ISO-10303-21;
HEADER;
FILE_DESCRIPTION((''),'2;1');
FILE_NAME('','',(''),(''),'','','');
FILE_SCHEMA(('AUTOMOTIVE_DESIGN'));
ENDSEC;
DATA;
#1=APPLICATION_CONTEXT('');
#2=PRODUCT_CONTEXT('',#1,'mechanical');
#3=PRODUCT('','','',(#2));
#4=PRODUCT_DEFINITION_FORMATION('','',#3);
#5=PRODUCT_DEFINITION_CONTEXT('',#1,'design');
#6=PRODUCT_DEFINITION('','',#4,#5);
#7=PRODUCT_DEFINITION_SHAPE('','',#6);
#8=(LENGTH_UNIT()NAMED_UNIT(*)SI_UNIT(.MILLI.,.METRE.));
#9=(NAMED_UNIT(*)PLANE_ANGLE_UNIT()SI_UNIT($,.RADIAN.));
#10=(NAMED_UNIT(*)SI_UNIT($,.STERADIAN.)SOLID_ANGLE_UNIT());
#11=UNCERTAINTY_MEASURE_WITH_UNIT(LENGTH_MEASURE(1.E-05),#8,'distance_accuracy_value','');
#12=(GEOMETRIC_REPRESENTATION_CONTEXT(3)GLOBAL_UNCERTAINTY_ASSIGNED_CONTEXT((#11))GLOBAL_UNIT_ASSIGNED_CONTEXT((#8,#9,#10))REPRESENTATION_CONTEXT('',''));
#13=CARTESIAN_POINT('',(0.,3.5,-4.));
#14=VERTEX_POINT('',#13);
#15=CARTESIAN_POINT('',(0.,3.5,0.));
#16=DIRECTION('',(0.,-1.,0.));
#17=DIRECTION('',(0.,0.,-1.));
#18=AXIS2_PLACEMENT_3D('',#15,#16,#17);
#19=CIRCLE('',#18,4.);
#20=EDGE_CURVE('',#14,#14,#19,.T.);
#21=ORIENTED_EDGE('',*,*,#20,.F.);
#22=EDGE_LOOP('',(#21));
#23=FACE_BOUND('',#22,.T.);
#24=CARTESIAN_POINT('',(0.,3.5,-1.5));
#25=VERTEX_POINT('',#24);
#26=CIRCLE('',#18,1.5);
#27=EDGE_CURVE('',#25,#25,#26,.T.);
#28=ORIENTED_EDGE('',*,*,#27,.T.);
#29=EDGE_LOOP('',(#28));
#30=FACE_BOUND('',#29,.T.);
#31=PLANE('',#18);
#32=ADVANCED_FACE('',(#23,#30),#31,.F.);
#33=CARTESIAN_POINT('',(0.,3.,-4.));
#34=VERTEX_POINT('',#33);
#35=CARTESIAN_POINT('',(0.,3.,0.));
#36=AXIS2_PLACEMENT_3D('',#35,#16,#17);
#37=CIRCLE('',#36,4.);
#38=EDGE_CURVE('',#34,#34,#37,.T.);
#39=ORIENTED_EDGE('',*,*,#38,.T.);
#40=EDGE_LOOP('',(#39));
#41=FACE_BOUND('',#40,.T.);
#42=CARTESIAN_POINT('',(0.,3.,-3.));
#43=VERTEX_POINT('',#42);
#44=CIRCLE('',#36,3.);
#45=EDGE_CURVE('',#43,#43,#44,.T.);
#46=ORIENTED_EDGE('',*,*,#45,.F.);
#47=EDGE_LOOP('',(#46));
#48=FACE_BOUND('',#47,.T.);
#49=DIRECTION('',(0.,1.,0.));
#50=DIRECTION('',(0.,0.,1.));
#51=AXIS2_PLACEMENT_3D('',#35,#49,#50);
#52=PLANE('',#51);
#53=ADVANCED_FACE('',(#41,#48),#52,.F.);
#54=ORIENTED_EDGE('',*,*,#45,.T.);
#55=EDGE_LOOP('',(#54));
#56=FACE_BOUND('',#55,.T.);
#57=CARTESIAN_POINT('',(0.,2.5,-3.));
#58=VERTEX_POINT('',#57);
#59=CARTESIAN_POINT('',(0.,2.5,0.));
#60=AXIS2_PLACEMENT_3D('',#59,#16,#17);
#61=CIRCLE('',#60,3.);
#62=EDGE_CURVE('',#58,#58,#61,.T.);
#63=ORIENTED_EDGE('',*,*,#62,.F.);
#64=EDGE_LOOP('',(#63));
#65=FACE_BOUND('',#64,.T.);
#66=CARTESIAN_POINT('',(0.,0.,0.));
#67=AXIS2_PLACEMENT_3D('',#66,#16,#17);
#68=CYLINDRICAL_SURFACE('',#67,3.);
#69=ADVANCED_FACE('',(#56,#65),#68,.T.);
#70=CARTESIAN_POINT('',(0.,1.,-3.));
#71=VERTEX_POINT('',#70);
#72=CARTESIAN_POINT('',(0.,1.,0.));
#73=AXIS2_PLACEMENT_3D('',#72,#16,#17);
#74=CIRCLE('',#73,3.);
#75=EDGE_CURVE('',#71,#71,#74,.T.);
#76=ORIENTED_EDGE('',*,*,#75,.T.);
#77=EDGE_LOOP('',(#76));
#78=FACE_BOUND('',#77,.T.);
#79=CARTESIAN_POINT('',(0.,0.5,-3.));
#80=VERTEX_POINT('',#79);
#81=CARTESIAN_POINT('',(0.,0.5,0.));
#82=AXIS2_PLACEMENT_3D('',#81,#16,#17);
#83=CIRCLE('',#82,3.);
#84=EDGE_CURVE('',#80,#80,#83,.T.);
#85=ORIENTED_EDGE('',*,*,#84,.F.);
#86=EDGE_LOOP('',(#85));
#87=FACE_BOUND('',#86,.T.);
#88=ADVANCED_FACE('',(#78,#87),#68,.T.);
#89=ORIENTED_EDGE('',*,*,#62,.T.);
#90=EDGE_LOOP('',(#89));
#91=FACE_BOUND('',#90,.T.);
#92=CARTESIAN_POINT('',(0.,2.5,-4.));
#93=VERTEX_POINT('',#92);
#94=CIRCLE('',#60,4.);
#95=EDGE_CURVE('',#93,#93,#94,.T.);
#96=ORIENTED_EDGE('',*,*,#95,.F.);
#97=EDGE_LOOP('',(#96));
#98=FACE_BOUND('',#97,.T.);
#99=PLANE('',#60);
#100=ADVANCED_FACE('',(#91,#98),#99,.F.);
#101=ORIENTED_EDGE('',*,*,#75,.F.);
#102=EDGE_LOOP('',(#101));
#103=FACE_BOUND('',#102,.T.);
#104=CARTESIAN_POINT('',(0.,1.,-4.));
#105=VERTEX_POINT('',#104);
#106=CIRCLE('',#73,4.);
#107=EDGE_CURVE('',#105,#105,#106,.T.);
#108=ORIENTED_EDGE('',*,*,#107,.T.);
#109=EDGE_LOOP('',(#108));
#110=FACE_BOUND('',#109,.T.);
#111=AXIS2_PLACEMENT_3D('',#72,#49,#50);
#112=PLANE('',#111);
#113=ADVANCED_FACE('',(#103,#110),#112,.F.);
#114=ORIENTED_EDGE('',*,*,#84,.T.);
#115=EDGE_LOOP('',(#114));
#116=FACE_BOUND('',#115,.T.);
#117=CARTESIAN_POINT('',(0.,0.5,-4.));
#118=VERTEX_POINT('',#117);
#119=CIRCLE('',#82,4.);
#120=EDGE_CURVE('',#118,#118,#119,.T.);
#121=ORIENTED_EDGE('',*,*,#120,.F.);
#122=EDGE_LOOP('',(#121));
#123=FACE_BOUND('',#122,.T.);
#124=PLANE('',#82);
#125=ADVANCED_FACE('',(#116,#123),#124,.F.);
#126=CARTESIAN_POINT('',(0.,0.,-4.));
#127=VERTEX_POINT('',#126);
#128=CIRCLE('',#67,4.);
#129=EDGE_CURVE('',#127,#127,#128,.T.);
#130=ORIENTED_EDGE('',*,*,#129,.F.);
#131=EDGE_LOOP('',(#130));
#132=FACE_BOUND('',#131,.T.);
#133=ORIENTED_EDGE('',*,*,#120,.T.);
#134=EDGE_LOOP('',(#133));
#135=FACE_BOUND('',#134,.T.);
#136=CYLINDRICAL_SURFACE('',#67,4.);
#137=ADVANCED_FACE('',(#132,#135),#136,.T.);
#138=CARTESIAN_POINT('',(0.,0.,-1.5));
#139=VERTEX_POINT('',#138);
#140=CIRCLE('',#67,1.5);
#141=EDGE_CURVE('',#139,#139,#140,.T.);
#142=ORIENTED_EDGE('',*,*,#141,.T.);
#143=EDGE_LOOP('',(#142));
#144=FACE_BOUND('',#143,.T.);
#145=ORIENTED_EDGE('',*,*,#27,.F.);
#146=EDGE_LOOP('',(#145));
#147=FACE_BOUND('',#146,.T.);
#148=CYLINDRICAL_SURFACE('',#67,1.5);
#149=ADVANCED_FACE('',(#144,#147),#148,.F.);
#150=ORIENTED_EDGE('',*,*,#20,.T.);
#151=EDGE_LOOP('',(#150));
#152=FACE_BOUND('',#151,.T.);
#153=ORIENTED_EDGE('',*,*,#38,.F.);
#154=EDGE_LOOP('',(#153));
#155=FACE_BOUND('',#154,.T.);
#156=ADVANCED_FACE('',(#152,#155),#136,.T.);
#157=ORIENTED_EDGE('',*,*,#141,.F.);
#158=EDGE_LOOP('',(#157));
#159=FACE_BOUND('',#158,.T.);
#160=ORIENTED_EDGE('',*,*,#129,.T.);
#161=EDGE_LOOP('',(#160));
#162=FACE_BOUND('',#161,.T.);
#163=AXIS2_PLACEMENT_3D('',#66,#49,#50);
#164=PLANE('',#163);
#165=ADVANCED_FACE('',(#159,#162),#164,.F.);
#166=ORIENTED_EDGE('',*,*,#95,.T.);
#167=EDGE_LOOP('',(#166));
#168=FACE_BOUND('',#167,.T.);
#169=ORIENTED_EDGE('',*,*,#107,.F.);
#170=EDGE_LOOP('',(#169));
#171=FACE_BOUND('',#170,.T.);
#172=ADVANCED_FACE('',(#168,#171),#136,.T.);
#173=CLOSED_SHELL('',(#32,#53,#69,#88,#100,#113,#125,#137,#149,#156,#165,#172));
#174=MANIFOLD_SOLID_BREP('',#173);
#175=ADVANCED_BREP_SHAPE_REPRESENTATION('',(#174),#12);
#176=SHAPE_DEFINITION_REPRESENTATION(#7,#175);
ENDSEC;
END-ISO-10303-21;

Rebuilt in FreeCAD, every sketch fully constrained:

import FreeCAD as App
import Part
import Sketcher


def add_polygon(sketch, points):
    """Adds a closed chain of lines whose ends are joined by coincident constraints."""
    first, n = sketch.GeometryCount, len(points)
    for a, b in zip(points, points[1:] + points[:1]):
        sketch.addGeometry(Part.LineSegment(App.Vector(*a, 0), App.Vector(*b, 0)), False)
    for i in range(n):
        sketch.addConstraint(Sketcher.Constraint("Coincident", first + i, 2, first + (i + 1) % n, 1))

doc = App.newDocument("Part")
body = doc.addObject("PartDesign::Body", "Body")

sketch1 = doc.addObject("Sketcher::SketchObject", "Sketch")
body.addObject(sketch1)
sketch1.AttachmentSupport = (doc.XY_Plane, [""])
sketch1.MapMode = "FlatFace"
add_polygon(sketch1, [(1.5, 3.5), (1.5, 0), (4, 0), (4, 0.5), (3, 0.5), (3, 1), (4, 1), (4, 2.5), (3, 2.5), (3, 3), (4, 3), (4, 3.5)])
sketch1.addConstraint(Sketcher.Constraint("Vertical", 0))
sketch1.addConstraint(Sketcher.Constraint("Horizontal", 1))
sketch1.addConstraint(Sketcher.Constraint("Vertical", 2))
sketch1.addConstraint(Sketcher.Constraint("Horizontal", 3))
sketch1.addConstraint(Sketcher.Constraint("Vertical", 4))
sketch1.addConstraint(Sketcher.Constraint("Horizontal", 5))
sketch1.addConstraint(Sketcher.Constraint("Vertical", 6))
sketch1.addConstraint(Sketcher.Constraint("Horizontal", 7))
sketch1.addConstraint(Sketcher.Constraint("Vertical", 8))
sketch1.addConstraint(Sketcher.Constraint("Horizontal", 9))
sketch1.addConstraint(Sketcher.Constraint("Vertical", 10))
sketch1.addConstraint(Sketcher.Constraint("Horizontal", 11))
sketch1.addConstraint(Sketcher.Constraint("PointOnObject", 0, 2, -1))
sketch1.addConstraint(Sketcher.Constraint("Vertical", 2, 2, 5, 2))
sketch1.addConstraint(Sketcher.Constraint("Vertical", 4, 2, 7, 2))
sketch1.addConstraint(Sketcher.Constraint("Vertical", 6, 2, 9, 2))
sketch1.addConstraint(Sketcher.Constraint("Equal", 2, 4))
sketch1.addConstraint(Sketcher.Constraint("Equal", 4, 8))
sketch1.addConstraint(Sketcher.Constraint("Equal", 8, 10))
sketch1.addConstraint(Sketcher.Constraint("DistanceX", 3, 2, 3, 1, 1.0))
sketch1.addConstraint(Sketcher.Constraint("DistanceX", 1, 1, 1, 2, 2.5))
sketch1.addConstraint(Sketcher.Constraint("DistanceY", 0, 2, 0, 1, 3.5))
sketch1.addConstraint(Sketcher.Constraint("DistanceY", 2, 1, 2, 2, 0.5))
sketch1.addConstraint(Sketcher.Constraint("DistanceX", -1, 1, 1, 2, 4.0))
revolution = doc.addObject("PartDesign::Revolution", "Revolution")
body.addObject(revolution)
revolution.Profile = sketch1
revolution.ReferenceAxis = (sketch1, ["V_Axis"])
revolution.Angle = 360

doc.recompute()
